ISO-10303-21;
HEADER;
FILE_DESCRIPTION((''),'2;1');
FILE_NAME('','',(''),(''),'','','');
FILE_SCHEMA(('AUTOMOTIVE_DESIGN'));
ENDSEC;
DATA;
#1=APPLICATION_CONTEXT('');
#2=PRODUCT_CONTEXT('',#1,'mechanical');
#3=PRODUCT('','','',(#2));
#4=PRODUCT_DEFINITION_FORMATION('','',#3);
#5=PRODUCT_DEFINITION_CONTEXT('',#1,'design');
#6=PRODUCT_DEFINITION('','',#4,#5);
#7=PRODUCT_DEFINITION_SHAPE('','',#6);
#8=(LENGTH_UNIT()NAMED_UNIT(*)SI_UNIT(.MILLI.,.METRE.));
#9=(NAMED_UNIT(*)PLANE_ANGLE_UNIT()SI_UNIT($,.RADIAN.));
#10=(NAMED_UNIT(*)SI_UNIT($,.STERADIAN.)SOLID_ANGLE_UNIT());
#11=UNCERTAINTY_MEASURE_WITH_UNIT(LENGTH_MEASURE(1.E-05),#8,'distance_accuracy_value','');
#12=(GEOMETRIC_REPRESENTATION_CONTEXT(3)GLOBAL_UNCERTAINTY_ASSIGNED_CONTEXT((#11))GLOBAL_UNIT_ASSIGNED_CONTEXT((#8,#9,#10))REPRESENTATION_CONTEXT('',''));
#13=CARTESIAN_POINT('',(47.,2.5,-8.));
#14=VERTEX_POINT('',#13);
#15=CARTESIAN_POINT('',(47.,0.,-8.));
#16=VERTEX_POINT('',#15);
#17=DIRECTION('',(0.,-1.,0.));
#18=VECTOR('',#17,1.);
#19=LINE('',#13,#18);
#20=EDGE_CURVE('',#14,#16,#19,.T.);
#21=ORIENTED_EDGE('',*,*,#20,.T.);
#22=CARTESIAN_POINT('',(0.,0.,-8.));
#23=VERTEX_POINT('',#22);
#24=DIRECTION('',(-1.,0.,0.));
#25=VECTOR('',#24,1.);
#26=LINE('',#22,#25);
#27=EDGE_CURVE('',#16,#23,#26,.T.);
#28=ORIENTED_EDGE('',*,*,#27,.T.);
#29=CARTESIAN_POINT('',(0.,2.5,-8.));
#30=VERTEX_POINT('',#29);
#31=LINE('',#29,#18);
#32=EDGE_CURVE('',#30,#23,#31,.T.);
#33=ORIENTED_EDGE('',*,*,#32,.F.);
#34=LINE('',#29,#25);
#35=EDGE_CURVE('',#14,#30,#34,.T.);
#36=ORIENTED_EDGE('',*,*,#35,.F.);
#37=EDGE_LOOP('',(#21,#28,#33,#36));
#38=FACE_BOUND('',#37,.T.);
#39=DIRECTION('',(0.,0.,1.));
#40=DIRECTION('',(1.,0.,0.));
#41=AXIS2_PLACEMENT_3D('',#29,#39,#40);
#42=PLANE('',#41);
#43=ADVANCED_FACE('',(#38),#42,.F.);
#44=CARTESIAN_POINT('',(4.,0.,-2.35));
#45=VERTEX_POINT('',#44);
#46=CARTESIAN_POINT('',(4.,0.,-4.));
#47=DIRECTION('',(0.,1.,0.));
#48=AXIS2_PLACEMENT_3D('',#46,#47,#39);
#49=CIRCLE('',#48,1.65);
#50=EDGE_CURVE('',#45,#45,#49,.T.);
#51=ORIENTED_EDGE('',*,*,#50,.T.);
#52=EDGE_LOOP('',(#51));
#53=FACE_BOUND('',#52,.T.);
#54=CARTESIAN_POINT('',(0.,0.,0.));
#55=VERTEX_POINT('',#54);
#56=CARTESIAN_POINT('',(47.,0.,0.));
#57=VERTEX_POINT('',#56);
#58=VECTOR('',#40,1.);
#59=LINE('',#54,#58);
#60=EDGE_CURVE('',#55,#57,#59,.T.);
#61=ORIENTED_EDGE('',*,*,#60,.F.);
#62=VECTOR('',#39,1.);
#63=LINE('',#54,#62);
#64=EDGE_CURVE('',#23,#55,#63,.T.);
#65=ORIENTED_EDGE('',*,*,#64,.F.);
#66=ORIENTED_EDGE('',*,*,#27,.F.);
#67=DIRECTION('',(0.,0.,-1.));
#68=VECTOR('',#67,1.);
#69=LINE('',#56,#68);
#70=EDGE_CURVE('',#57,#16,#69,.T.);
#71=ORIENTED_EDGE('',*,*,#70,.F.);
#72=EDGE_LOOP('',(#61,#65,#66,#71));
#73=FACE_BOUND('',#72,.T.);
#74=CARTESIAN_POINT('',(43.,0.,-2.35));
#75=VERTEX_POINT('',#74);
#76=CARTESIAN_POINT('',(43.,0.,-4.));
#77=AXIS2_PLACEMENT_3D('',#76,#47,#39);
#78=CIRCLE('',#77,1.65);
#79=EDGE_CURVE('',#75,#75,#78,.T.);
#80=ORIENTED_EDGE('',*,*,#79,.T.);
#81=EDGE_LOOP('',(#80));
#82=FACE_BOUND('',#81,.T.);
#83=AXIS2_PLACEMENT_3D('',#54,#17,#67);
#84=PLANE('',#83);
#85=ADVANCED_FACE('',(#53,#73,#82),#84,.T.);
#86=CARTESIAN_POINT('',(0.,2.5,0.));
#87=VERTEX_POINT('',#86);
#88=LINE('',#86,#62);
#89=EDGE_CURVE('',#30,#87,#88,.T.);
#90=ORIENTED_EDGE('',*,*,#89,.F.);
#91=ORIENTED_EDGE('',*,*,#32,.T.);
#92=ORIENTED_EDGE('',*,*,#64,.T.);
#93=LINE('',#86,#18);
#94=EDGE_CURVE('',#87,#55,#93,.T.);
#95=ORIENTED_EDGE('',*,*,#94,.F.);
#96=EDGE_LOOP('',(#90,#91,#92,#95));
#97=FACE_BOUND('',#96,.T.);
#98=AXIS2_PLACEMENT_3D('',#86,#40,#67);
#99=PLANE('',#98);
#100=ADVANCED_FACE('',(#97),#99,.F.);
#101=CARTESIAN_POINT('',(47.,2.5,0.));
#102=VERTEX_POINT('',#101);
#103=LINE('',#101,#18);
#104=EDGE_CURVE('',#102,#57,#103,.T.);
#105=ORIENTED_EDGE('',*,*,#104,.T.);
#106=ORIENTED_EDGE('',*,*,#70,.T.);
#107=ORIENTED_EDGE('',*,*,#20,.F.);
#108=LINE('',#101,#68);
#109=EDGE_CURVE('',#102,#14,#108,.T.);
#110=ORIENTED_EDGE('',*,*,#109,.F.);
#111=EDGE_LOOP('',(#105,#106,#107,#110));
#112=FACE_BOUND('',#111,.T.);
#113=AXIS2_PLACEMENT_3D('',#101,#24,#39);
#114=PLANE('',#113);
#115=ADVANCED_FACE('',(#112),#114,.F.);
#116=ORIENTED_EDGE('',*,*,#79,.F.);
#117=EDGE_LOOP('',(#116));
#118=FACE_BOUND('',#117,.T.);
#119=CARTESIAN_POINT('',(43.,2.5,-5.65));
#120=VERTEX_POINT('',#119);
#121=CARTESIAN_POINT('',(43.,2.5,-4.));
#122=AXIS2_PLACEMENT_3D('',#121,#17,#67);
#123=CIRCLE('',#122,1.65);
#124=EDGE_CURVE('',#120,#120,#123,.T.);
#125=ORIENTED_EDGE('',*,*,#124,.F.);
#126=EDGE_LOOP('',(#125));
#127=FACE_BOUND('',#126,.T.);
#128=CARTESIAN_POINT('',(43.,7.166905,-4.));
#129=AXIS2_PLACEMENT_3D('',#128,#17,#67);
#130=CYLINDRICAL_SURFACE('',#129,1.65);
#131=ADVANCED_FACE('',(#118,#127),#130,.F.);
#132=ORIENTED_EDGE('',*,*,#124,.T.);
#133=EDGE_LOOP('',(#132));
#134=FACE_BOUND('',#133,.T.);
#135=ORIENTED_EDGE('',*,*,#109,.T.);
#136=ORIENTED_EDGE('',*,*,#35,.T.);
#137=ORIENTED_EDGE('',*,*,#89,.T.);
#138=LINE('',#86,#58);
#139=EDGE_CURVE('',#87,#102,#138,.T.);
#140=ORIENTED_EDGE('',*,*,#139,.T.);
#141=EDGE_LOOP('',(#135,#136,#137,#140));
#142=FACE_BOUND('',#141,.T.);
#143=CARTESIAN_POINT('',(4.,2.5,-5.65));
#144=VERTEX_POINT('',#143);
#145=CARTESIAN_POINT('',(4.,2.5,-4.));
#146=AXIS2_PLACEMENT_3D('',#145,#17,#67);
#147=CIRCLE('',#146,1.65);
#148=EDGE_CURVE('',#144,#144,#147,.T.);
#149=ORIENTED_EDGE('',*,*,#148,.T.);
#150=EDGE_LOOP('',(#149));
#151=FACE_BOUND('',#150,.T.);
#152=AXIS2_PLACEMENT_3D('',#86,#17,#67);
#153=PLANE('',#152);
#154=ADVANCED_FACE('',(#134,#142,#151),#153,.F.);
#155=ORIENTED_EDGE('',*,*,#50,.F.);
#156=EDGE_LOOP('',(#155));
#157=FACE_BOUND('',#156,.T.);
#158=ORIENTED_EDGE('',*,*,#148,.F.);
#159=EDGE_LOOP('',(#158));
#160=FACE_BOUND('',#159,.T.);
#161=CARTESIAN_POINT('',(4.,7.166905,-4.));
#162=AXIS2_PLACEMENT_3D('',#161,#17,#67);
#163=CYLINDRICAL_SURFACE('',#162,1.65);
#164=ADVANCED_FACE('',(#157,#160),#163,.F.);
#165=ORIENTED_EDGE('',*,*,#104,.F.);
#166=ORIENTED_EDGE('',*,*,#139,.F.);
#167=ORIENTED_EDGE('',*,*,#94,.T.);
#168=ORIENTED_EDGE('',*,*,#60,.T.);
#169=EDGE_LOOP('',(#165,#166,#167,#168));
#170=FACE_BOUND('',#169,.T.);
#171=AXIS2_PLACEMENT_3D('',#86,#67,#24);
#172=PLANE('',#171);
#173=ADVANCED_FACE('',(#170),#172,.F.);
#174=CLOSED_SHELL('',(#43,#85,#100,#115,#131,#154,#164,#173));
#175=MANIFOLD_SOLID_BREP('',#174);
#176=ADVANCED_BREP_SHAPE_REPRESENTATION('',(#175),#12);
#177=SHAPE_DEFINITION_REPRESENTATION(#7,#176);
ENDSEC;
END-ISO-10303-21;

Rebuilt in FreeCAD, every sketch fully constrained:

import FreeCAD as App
import Part
import Sketcher


def add_polygon(sketch, points):
    """Adds a closed chain of lines whose ends are joined by coincident constraints."""
    first, n = sketch.GeometryCount, len(points)
    for a, b in zip(points, points[1:] + points[:1]):
        sketch.addGeometry(Part.LineSegment(App.Vector(*a, 0), App.Vector(*b, 0)), False)
    for i in range(n):
        sketch.addConstraint(Sketcher.Constraint("Coincident", first + i, 2, first + (i + 1) % n, 1))

doc = App.newDocument("Part")
params = doc.addObject("Spreadsheet::Sheet", "Params")
for row, (alias, value) in enumerate([
    ("sketch1_width", "47 mm"),
    ("sketch1_height", "8 mm"),
    ("pad1_length", "2.5 mm"),
    ("sketch2_diameter", "3.3 mm"),
    ("pocket1_length", "2.5 mm"),
], start=1):
    params.set(f"A{row}", alias)
    params.set(f"B{row}", "=" + value)
    params.setAlias(f"B{row}", alias)

body = doc.addObject("PartDesign::Body", "Body")

# Sketch on XZ plane
sketch1 = doc.addObject("Sketcher::SketchObject", "Sketch")
body.addObject(sketch1)
sketch1.AttachmentSupport = (doc.XZ_Plane, [""])
sketch1.MapMode = "FlatFace"
add_polygon(sketch1, [(0, -8), (0, 0), (47, 0), (47, -8)])  # lines 0-3
sketch1.addConstraint(Sketcher.Constraint("Vertical", 0))
sketch1.addConstraint(Sketcher.Constraint("Horizontal", 1))
sketch1.addConstraint(Sketcher.Constraint("Vertical", 2))
sketch1.addConstraint(Sketcher.Constraint("Horizontal", 3))
sketch1.addConstraint(Sketcher.Constraint("Coincident", 0, 2, -1, 1))
sketch1.addConstraint(Sketcher.Constraint("DistanceX", 1, 1, 1, 2, 47.0))
sketch1.addConstraint(Sketcher.Constraint("DistanceY", 0, 1, 0, 2, 8.0))
sketch1.setExpression("Constraints[9]", "Params.sketch1_width")
sketch1.setExpression("Constraints[10]", "Params.sketch1_height")
pad1 = doc.addObject("PartDesign::Pad", "Pad")
body.addObject(pad1)
pad1.Profile = sketch1
pad1.setExpression("Length", "Params.pad1_length")
pad1.Reversed = True

# Sketch on XZ plane
sketch2 = doc.addObject("Sketcher::SketchObject", "Sketch001")
body.addObject(sketch2)
sketch2.AttachmentSupport = (doc.XZ_Plane, [""])
sketch2.MapMode = "FlatFace"
sketch2.addGeometry(Part.Circle(App.Vector(4, -4, 0), App.Vector(0, 0, 1), 1.6), False)
sketch2.addGeometry(Part.Circle(App.Vector(43, -4, 0), App.Vector(0, 0, 1), 1.6), False)
sketch2.addConstraint(Sketcher.Constraint("Equal", 0, 1))
sketch2.addConstraint(Sketcher.Constraint("Horizontal", 0, 3, 1, 3))
sketch2.addConstraint(Sketcher.Constraint("Diameter", 0, 3.3))
sketch2.addConstraint(Sketcher.Constraint("DistanceX", -1, 1, 0, 3, 4.0))
sketch2.addConstraint(Sketcher.Constraint("DistanceY", 0, 3, -1, 1, 4.0))
sketch2.addConstraint(Sketcher.Constraint("DistanceX", -1, 1, 1, 3, 43.0))
sketch2.setExpression("Constraints[2]", "Params.sketch2_diameter")
pocket1 = doc.addObject("PartDesign::Pocket", "Pocket")
body.addObject(pocket1)
pocket1.Profile = sketch2
pocket1.setExpression("Length", "Params.pocket1_length")

doc.recompute()
